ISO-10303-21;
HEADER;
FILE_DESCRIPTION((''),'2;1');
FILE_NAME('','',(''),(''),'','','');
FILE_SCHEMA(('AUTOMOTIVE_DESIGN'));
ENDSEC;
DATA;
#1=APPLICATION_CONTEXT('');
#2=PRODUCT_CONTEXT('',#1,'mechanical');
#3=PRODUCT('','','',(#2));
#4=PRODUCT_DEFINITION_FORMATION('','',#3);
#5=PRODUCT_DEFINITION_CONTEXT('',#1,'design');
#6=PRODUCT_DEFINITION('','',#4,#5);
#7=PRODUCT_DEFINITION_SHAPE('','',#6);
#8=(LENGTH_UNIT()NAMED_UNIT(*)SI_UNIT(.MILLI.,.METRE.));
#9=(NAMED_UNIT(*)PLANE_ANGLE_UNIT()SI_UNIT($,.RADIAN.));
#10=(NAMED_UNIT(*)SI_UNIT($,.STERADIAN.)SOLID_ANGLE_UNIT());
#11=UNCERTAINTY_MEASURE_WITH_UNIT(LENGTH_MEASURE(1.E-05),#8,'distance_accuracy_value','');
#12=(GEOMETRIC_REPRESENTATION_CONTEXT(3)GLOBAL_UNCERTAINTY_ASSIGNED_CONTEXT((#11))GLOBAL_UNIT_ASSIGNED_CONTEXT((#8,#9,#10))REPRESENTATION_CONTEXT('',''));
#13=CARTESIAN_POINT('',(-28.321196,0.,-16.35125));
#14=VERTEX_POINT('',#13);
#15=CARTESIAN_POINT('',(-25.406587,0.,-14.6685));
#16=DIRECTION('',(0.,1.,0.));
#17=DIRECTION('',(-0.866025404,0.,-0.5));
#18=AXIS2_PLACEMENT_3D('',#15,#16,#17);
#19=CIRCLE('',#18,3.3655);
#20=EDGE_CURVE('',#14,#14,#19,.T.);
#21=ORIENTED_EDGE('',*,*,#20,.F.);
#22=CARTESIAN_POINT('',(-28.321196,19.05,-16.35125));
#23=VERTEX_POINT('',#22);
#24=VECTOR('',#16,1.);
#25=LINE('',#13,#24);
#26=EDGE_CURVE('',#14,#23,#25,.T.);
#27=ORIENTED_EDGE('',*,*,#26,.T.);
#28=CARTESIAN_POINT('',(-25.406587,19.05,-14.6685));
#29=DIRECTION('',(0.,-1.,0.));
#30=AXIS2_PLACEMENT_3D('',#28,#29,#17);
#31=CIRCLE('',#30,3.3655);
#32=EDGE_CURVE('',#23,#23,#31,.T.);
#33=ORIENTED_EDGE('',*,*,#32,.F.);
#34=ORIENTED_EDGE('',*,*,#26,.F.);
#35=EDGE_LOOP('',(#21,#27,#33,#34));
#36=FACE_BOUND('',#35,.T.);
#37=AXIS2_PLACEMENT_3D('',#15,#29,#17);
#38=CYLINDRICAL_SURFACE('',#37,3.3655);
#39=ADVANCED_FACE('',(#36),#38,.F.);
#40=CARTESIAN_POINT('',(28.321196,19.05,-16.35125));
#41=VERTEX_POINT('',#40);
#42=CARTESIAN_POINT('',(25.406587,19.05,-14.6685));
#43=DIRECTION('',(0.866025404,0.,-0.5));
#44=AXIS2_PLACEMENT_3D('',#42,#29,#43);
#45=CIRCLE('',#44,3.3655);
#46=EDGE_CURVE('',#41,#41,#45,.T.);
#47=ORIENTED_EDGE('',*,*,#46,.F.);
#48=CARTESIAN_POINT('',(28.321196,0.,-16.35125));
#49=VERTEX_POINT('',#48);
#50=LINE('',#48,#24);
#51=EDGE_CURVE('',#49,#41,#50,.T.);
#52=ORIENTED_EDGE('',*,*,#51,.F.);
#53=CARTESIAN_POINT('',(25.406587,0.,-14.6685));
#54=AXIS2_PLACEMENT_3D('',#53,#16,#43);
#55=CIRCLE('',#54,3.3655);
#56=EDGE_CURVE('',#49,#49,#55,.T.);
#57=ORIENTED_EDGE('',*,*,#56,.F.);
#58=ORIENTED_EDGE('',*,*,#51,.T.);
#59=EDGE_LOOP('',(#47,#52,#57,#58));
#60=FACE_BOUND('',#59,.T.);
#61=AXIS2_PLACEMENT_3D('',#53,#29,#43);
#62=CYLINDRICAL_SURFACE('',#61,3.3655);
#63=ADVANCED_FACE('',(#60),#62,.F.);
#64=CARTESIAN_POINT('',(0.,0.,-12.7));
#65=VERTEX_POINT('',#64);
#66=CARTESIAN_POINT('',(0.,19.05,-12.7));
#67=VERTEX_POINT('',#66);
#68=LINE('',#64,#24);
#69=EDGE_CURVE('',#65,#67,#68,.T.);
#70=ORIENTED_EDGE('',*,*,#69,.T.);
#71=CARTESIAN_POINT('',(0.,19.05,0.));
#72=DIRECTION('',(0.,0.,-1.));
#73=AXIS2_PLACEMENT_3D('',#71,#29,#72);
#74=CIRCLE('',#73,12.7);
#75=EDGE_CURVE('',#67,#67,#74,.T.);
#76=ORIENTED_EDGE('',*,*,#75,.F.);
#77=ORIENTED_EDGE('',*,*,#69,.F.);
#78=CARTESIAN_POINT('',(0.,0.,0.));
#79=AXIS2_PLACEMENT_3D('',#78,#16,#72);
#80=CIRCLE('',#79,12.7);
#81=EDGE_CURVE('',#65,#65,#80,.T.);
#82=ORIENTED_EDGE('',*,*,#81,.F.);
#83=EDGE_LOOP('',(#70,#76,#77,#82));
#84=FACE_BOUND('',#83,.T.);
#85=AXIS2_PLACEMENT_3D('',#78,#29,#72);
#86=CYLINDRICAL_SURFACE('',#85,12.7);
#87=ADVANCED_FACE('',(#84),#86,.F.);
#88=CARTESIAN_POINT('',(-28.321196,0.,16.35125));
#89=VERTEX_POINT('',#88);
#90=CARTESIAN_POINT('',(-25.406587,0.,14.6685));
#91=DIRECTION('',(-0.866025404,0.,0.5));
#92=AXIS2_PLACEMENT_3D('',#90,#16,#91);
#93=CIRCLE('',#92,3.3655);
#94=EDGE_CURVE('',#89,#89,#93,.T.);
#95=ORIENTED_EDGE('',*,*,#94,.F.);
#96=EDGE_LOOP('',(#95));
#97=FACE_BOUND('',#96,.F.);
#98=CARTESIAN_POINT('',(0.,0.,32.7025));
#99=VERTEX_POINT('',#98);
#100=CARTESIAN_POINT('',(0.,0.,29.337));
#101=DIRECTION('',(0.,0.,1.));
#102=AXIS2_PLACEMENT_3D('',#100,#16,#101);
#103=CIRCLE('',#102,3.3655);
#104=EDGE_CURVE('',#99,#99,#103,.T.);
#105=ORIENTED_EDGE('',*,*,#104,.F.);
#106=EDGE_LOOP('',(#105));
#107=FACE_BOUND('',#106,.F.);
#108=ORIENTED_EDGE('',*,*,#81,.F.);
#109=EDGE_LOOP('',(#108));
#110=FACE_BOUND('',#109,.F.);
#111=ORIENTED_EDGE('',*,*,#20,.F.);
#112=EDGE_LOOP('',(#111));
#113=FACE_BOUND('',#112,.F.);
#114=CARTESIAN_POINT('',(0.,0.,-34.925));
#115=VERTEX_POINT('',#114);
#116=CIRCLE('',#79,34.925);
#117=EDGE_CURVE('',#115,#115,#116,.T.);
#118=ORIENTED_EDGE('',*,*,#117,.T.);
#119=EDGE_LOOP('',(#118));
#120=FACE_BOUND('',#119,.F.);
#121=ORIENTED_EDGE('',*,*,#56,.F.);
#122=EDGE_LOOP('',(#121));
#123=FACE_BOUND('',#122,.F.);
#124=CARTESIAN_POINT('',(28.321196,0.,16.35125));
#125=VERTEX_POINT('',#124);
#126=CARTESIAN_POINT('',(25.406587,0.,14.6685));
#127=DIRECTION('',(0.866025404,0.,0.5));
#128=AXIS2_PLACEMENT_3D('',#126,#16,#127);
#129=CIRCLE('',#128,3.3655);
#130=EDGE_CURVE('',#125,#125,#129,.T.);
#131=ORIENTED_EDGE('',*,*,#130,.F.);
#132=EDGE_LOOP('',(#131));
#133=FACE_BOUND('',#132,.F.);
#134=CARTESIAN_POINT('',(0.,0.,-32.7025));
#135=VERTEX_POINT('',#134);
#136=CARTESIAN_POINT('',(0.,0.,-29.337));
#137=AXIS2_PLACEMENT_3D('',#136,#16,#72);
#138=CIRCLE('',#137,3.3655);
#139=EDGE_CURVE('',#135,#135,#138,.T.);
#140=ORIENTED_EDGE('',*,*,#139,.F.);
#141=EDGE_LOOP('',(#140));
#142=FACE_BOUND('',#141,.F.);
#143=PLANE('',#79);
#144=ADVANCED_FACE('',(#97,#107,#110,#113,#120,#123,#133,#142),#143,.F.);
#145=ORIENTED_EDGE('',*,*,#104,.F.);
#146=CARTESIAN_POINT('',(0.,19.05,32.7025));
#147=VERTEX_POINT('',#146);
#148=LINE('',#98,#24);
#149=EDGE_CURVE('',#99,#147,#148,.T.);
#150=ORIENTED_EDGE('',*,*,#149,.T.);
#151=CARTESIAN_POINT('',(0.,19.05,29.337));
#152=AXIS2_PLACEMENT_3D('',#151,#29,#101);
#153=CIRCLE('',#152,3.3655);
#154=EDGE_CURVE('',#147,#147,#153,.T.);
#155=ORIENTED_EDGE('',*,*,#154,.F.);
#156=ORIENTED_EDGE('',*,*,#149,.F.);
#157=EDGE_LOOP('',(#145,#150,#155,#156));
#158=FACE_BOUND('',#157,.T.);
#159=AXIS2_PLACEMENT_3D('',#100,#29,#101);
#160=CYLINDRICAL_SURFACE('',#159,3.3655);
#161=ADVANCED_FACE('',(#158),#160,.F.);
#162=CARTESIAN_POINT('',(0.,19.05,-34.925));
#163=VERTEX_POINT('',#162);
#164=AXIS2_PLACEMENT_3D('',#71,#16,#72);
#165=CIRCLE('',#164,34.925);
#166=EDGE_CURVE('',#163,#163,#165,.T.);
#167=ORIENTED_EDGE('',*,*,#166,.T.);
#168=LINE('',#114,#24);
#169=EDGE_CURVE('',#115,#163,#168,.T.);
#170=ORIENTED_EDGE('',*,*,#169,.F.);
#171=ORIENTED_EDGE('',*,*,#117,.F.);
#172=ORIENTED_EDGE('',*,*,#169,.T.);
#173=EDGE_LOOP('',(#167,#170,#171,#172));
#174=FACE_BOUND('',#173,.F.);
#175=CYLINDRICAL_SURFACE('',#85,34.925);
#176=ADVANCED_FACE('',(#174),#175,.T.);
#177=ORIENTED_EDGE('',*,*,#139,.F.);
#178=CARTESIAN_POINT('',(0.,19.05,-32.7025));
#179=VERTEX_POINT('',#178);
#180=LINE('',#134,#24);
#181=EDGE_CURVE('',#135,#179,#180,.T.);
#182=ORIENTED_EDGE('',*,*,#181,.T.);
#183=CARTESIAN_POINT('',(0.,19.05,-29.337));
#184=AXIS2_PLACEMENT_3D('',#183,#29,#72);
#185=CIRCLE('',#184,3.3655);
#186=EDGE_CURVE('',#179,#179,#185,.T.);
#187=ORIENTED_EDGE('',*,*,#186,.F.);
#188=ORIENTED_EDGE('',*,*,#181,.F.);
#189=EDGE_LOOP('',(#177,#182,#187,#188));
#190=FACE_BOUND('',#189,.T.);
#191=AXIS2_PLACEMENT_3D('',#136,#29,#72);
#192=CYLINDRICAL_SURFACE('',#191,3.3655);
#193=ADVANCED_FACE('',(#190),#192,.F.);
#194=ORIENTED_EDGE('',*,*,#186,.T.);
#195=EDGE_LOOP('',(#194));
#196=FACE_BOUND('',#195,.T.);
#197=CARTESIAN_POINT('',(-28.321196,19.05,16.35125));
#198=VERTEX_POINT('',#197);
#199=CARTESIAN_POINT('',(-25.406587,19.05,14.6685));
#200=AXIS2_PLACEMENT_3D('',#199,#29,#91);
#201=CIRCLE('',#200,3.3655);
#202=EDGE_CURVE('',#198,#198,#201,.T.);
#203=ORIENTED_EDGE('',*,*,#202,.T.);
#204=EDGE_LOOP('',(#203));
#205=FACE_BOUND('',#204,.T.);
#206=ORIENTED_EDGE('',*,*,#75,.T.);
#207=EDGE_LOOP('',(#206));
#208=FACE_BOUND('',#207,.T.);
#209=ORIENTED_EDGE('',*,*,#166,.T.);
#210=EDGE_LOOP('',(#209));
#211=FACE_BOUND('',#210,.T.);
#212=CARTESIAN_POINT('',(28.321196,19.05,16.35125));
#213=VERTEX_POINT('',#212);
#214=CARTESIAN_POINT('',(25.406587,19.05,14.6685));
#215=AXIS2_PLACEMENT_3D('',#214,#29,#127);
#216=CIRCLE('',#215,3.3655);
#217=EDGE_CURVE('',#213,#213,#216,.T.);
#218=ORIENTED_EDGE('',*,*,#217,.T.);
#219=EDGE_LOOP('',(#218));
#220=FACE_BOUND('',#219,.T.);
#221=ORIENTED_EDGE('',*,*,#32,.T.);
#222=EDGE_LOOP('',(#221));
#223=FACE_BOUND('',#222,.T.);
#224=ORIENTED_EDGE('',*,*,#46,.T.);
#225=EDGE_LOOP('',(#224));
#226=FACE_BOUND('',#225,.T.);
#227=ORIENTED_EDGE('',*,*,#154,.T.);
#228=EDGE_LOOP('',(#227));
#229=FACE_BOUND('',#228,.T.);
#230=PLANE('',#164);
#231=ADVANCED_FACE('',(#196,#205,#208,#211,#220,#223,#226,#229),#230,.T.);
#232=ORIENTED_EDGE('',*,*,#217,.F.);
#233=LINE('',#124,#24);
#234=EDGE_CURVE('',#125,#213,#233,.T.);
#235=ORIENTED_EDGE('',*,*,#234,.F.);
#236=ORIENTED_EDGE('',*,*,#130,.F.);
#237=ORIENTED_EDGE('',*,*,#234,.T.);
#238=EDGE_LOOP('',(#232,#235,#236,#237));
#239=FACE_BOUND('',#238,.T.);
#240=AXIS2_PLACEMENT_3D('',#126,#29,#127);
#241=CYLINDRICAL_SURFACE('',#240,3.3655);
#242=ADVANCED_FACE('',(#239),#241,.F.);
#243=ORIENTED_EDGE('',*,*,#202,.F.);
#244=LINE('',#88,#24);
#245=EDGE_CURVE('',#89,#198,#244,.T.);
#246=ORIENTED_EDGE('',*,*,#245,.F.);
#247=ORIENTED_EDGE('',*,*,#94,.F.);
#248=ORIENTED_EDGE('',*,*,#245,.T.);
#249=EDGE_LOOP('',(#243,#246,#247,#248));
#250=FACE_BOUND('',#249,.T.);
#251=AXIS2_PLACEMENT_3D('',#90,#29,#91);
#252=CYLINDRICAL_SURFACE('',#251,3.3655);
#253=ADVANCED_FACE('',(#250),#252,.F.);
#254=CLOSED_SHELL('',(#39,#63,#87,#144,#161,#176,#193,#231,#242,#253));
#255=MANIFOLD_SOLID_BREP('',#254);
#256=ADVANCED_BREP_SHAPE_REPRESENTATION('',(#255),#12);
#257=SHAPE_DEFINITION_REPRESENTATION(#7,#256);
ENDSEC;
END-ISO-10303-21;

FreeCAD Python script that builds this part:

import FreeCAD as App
import Part
import Sketcher

V = App.Vector
Q = App.Units.Quantity

doc = App.newDocument("Part")
body = doc.addObject("PartDesign::Body", "Body")

# Sketch on XZ plane
sketch1 = body.newObject("Sketcher::SketchObject", "Sketch")
sketch1.AttachmentSupport = (doc.getObject("XZ_Plane"), [""])
sketch1.MapMode = "FlatFace"
sketch1.addGeometry(Part.Circle(V(0, 0, 0), V(0, 0, 1), 35), False)
sketch1.addConstraint([
    Sketcher.Constraint("Coincident", 0, 3, -1, 1),
    Sketcher.Constraint("Diameter", 0, Q("2.75 in")),
])
pad1 = body.newObject("PartDesign::Pad", "Pad")
pad1.Profile = sketch1
pad1.Length = Q("0.75 in")
pad1.Reversed = True

# Sketch on XZ plane
sketch2 = body.newObject("Sketcher::SketchObject", "Sketch001")
sketch2.AttachmentSupport = (doc.getObject("XZ_Plane"), [""])
sketch2.MapMode = "FlatFace"
sketch2.addGeometry(Part.Circle(V(0, 0, 0), V(0, 0, 1), 13), False)
sketch2.addConstraint([
    Sketcher.Constraint("Coincident", 0, 3, -1, 1),
    Sketcher.Constraint("Diameter", 0, Q("1 in")),
])
pocket1 = body.newObject("PartDesign::Pocket", "Pocket")
pocket1.Profile = sketch2
pocket1.Type = "ThroughAll"

# Sketch on XZ plane
sketch3 = body.newObject("Sketcher::SketchObject", "Sketch002")
sketch3.AttachmentSupport = (doc.getObject("XZ_Plane"), [""])
sketch3.MapMode = "FlatFace"
sketch3.addGeometry(Part.Circle(V(0, -29.3, 0), V(0, 0, 1), 3.4), False)
sketch3.addConstraint([
    Sketcher.Constraint("PointOnObject", 0, 3, -2),
    Sketcher.Constraint("Diameter", 0, Q("0.265 in")),
    Sketcher.Constraint("DistanceY", 0, 3, -1, 1, Q("1.155 in")),
])
pocket2 = body.newObject("PartDesign::Pocket", "Pocket001")
pocket2.Profile = sketch3
pocket2.Type = "ThroughAll"
doc.recompute()

polarpattern = body.newObject("PartDesign::PolarPattern", "PolarPattern")
polarpattern.Originals = [pocket2]
polarpattern.Axis = (doc.getObject("Y_Axis"), [""])
polarpattern.Angle = 360
polarpattern.Occurrences = 6
body.Tip = polarpattern

doc.recompute()
